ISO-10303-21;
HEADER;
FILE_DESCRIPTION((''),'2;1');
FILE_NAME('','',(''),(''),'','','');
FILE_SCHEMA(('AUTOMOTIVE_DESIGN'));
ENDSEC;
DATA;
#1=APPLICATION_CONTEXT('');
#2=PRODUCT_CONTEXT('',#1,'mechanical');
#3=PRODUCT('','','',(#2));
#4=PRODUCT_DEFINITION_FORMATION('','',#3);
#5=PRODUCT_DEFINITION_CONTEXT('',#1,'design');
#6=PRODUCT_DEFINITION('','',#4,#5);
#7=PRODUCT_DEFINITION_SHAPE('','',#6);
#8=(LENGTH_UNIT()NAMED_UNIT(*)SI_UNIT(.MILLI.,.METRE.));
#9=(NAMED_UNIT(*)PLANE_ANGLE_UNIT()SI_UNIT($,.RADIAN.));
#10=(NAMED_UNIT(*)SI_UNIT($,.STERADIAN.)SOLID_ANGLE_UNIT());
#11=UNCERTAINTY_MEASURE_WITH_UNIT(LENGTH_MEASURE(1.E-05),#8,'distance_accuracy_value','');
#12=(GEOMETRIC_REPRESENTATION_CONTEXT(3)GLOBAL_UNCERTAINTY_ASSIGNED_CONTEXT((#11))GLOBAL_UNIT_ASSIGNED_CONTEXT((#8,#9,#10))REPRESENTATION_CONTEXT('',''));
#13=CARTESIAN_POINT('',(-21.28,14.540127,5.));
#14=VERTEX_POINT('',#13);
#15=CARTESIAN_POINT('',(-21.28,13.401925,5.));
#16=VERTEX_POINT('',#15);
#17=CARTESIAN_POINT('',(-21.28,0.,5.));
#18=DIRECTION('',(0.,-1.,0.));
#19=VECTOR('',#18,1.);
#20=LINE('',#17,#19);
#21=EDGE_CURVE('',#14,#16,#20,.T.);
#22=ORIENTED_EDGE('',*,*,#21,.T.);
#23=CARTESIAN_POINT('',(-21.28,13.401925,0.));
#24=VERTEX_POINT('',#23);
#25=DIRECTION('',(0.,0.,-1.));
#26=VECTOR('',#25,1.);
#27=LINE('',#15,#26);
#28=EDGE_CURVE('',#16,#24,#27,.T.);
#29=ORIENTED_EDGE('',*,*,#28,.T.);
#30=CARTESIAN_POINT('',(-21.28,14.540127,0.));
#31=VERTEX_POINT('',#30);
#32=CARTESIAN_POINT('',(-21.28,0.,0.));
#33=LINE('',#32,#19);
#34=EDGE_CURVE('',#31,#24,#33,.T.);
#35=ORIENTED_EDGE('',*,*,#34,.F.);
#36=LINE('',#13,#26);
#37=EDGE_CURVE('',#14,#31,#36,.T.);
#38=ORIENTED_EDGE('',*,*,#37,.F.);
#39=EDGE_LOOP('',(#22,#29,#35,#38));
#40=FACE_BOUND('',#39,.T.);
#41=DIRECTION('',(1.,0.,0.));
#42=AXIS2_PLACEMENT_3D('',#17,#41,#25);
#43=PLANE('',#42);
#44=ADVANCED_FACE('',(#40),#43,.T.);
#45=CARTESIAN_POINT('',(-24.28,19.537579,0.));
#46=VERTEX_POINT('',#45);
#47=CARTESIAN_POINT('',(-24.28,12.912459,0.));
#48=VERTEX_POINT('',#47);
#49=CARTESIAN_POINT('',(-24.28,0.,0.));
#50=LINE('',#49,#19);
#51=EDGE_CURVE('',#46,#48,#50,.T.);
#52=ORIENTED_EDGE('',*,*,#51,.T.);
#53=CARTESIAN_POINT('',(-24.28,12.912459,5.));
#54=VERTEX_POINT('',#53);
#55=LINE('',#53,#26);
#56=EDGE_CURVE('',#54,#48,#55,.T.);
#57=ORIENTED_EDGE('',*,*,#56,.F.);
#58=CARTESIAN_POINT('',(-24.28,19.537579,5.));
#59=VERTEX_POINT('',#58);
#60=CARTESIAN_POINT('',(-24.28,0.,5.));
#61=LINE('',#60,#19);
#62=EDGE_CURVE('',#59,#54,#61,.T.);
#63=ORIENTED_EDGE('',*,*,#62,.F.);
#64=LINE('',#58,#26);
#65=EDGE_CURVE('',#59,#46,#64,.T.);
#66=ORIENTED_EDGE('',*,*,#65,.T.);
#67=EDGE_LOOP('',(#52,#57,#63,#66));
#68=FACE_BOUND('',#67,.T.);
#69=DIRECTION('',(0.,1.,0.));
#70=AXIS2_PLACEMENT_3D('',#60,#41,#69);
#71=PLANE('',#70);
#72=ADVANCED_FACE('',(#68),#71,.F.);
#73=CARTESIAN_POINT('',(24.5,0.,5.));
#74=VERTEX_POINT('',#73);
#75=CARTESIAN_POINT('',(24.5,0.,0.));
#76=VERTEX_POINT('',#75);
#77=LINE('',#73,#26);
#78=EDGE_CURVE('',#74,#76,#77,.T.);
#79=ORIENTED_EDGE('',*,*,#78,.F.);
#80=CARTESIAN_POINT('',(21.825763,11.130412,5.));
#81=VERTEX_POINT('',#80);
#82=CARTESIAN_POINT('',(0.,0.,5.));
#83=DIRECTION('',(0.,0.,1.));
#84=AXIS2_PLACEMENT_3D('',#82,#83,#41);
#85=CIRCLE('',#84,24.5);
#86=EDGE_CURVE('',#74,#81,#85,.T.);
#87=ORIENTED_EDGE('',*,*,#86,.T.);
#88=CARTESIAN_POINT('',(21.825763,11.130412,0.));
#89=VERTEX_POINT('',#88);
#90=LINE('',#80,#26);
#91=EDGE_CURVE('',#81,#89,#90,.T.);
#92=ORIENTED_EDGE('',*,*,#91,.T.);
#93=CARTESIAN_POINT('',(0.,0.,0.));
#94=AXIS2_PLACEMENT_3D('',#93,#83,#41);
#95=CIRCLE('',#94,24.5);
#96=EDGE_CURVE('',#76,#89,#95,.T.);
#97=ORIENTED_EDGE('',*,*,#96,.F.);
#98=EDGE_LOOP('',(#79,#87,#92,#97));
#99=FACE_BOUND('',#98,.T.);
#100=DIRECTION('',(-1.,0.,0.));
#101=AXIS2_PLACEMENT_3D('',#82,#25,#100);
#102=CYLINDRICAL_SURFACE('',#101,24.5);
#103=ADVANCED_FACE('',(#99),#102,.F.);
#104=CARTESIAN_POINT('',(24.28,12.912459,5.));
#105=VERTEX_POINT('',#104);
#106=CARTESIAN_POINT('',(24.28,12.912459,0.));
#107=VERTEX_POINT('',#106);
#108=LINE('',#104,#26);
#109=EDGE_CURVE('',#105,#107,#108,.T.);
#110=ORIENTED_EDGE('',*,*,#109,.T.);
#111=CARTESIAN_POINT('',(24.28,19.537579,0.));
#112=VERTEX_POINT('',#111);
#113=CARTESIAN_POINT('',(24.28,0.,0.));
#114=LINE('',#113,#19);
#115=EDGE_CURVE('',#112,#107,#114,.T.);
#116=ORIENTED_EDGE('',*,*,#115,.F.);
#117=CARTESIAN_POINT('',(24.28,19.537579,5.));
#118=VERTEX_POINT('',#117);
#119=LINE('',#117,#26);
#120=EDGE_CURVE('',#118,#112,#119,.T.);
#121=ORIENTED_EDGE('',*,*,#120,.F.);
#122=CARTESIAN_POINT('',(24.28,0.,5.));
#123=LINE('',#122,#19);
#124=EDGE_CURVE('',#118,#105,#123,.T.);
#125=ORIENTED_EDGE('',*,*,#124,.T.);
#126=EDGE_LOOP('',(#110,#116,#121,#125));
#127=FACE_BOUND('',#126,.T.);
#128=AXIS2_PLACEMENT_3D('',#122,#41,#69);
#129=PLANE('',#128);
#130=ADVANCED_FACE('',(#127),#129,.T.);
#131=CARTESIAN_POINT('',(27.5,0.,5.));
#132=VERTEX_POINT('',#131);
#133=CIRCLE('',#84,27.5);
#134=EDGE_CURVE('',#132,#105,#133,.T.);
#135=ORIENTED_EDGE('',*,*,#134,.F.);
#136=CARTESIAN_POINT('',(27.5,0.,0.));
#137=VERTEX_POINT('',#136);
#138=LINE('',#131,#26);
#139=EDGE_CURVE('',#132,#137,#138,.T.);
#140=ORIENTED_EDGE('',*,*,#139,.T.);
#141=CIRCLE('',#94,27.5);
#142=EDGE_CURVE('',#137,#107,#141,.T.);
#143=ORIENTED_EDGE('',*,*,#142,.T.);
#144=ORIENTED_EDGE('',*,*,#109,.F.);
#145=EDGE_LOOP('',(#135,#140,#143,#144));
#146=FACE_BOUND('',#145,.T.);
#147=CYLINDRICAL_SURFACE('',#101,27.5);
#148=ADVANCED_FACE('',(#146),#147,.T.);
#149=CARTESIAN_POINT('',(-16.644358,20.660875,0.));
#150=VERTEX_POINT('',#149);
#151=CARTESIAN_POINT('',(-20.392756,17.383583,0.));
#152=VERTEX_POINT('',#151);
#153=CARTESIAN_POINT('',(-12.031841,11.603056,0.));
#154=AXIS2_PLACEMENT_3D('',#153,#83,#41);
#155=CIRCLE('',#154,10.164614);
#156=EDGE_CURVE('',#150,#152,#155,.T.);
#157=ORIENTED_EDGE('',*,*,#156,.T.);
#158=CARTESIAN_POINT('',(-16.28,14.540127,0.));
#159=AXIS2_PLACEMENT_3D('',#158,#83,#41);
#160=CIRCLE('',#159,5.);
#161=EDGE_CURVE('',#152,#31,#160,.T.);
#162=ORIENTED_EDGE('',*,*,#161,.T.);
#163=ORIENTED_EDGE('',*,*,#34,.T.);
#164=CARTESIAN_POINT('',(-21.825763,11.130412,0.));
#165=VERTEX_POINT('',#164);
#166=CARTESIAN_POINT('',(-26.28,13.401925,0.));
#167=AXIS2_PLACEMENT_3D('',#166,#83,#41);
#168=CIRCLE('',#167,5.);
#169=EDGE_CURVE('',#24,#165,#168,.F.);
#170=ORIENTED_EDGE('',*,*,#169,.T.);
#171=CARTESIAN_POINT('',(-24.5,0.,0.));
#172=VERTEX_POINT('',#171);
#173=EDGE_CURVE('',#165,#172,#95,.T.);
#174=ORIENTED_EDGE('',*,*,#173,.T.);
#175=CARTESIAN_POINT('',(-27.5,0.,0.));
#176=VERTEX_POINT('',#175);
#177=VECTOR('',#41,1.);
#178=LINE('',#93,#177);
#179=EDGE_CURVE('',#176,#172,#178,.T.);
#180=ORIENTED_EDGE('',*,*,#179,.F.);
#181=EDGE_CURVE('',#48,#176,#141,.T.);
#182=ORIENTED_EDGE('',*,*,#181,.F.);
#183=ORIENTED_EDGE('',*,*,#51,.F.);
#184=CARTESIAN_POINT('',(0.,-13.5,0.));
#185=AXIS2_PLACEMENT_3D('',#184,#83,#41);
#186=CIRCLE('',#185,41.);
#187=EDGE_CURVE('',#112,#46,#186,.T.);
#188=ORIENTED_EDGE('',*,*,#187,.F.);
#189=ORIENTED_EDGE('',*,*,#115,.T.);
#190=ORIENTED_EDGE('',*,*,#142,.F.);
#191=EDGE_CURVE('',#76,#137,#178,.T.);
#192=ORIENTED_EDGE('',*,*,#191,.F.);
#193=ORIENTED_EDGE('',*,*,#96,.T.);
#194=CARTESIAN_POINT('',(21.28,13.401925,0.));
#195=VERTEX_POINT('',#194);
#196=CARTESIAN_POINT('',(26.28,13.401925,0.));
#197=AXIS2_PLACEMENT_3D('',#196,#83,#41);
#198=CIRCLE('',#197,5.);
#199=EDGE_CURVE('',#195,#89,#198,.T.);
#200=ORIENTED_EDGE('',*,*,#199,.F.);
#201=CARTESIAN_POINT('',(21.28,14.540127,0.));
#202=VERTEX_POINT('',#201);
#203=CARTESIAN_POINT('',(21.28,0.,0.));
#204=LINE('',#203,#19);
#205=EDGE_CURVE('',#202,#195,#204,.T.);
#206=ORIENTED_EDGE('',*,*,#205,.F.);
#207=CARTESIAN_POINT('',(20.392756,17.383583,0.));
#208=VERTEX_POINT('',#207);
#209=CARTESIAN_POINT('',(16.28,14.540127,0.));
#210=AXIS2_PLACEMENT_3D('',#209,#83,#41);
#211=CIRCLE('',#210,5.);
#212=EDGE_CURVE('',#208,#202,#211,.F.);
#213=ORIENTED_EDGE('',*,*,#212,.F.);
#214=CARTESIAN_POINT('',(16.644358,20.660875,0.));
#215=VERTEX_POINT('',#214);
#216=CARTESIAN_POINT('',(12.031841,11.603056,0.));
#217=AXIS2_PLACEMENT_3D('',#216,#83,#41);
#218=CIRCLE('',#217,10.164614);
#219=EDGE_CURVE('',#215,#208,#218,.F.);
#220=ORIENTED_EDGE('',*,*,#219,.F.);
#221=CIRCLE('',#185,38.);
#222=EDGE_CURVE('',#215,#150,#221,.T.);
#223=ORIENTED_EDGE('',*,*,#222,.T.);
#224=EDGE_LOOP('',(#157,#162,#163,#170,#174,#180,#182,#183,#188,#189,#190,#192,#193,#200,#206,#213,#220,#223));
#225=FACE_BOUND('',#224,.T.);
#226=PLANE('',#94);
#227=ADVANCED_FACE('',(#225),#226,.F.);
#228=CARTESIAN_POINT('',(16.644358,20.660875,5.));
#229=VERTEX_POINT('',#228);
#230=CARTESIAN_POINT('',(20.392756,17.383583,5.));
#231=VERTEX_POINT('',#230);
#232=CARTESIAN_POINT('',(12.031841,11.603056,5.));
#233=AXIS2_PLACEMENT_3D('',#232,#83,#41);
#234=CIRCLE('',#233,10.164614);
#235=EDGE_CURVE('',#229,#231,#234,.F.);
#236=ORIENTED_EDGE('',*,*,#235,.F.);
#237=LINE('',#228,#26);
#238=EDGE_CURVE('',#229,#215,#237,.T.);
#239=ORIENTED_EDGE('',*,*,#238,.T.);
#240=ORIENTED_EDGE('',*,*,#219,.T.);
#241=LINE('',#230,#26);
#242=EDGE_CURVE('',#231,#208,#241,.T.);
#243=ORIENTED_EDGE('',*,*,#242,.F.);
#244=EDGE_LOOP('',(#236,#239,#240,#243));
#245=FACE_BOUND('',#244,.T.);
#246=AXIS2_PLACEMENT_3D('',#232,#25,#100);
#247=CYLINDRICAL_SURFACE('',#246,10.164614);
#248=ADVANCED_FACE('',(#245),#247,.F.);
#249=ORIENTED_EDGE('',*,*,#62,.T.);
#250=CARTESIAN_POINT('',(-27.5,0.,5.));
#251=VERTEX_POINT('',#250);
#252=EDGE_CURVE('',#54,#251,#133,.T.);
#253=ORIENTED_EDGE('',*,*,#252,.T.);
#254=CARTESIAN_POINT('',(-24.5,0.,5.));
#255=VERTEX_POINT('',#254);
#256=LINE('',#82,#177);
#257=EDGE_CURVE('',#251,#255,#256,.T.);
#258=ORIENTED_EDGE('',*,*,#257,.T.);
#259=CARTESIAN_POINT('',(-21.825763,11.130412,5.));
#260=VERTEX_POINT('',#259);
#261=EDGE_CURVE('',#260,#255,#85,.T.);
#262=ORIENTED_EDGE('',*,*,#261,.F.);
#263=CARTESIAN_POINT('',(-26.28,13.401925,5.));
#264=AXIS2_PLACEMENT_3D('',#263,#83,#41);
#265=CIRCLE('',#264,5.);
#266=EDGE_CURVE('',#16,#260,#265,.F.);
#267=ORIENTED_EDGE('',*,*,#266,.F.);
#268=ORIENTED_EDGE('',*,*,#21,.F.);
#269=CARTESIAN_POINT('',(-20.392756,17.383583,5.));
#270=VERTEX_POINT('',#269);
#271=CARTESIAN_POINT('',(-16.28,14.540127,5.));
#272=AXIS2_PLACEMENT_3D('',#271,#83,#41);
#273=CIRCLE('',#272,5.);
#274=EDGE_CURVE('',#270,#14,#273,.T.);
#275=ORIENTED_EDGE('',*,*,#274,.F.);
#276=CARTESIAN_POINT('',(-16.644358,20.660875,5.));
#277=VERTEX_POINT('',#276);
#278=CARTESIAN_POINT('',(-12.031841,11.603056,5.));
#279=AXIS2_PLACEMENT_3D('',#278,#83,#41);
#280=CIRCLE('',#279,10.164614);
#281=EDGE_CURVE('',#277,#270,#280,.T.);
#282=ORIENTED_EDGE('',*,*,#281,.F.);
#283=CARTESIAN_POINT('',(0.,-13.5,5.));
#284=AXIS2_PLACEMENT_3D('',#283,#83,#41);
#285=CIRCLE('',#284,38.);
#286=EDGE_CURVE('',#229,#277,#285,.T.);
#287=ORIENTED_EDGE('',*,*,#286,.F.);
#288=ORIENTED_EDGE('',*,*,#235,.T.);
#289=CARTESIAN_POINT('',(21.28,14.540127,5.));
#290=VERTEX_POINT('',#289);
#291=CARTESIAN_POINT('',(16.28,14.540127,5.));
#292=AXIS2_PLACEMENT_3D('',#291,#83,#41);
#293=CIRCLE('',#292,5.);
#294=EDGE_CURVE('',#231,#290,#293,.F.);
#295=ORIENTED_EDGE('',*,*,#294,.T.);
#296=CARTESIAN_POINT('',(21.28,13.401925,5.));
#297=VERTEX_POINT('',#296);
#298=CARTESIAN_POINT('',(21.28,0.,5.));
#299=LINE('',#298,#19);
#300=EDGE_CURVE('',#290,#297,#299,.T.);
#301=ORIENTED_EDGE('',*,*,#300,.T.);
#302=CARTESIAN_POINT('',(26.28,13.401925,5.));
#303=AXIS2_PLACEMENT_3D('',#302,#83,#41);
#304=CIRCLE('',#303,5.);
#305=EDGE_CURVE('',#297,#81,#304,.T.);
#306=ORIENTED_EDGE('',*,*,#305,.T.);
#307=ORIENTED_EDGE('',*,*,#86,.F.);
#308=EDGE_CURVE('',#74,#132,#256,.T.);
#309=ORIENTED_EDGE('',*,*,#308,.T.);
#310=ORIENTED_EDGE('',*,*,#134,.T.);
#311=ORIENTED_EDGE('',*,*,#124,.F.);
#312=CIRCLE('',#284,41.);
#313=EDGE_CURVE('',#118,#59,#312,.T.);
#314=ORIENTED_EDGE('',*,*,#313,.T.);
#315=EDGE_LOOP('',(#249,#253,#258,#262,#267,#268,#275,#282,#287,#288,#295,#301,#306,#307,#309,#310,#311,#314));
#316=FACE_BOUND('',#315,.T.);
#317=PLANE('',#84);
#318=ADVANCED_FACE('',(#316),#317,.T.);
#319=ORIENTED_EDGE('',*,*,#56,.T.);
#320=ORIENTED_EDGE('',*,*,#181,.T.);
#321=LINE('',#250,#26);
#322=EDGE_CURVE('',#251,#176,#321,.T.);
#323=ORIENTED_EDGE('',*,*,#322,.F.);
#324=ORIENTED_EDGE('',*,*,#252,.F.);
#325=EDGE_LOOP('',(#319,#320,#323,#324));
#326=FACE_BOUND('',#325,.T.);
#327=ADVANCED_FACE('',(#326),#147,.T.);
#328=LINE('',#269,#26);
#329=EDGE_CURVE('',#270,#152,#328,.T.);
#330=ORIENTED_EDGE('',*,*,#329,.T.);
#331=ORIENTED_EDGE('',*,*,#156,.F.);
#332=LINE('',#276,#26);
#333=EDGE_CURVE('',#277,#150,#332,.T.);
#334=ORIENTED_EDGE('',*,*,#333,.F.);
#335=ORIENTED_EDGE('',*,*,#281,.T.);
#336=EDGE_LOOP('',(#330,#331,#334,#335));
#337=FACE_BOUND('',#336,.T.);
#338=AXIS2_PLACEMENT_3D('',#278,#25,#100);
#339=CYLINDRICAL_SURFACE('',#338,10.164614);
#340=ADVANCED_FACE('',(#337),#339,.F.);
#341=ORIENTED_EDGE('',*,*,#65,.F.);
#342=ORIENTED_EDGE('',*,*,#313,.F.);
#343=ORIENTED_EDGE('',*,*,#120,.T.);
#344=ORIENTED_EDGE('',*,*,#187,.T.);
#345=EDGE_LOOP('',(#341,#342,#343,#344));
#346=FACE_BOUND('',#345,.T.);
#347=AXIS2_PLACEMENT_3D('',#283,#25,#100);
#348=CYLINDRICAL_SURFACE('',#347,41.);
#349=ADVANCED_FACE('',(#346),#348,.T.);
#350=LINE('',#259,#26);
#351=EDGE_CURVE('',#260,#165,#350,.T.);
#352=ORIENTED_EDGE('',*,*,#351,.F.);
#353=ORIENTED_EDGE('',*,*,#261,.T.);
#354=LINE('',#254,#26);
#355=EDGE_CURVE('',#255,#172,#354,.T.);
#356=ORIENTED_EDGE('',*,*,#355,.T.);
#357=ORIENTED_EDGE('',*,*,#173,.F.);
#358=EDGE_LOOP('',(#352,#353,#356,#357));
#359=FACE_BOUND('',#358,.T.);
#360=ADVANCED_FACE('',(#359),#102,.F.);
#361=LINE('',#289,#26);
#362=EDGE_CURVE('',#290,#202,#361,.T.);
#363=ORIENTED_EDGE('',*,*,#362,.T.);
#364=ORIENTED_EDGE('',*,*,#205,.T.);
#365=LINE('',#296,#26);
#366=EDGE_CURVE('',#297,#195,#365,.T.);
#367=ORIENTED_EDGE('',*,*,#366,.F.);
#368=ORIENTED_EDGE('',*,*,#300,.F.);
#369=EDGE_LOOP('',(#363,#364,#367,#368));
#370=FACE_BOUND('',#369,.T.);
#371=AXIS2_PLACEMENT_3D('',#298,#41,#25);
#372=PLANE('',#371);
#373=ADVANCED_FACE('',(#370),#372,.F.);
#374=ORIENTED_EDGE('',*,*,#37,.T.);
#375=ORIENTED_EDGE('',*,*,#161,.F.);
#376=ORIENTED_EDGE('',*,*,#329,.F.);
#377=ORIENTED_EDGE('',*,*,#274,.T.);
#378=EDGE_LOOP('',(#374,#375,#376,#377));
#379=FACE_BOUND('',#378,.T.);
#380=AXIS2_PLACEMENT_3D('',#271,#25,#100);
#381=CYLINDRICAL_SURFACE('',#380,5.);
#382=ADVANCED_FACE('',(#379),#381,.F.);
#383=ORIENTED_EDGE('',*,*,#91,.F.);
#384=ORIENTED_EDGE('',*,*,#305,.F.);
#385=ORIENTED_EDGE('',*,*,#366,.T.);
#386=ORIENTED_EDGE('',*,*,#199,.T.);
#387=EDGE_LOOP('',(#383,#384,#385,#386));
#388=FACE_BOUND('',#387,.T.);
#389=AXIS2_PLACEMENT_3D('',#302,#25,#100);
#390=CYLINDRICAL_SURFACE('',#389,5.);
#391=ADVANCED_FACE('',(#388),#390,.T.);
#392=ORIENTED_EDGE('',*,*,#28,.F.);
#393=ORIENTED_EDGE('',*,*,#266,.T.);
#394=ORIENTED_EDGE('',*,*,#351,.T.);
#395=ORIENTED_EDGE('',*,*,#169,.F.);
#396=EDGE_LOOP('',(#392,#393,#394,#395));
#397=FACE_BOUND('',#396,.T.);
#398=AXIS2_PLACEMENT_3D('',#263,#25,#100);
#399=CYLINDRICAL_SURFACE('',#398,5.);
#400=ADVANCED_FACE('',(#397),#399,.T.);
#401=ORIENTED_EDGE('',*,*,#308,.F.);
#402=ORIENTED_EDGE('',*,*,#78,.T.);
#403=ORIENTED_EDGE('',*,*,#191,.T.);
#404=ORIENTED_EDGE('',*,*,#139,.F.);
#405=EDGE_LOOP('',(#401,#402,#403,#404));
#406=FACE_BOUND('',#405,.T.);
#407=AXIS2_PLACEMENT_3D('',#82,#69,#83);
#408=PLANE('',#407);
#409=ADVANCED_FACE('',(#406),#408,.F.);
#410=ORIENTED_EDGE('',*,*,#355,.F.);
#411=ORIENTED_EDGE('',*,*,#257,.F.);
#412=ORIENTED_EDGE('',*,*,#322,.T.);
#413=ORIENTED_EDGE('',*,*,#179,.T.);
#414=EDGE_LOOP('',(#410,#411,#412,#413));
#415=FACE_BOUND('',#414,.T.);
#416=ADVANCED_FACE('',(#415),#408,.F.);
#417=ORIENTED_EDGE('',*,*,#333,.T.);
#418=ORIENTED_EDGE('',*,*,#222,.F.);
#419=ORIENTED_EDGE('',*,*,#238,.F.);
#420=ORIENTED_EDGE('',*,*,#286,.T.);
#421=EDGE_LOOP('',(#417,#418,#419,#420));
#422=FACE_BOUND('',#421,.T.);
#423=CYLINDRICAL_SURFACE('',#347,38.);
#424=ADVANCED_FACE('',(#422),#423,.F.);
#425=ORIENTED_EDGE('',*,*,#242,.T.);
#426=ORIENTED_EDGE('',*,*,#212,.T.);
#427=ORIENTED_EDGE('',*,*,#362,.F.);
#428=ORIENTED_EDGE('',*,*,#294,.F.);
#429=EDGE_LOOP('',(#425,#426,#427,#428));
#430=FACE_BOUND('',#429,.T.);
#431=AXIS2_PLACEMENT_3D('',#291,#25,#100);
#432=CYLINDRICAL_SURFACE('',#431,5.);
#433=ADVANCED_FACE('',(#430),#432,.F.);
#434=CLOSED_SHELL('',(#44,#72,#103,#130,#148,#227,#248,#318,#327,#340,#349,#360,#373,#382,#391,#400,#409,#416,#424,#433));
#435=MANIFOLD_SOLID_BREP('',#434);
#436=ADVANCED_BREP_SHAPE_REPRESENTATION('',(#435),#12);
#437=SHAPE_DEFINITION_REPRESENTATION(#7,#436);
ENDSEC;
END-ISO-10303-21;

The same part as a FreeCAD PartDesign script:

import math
import FreeCAD as App
import Part
import Sketcher
from FreeCAD import Vector

doc = App.newDocument("Part")
body = doc.addObject("PartDesign::Body", "Body")

# Sketch on XY plane
sketch1 = body.newObject("Sketcher::SketchObject", "Sketch")
sketch1.AttachmentSupport = (doc.getObject("XY_Plane"), [""])
sketch1.MapMode = "FlatFace"
sketch1.addGeometry([
    Part.LineSegment(Vector(-27.5, 0, 0), Vector(-24.5, 0, 0)),  # 0
    Part.ArcOfCircle(Part.Circle(Vector(0, 0, 0), Vector(0, 0, 1), 24.5), math.radians(153), math.radians(180)),  # 1
    Part.ArcOfCircle(Part.Circle(Vector(-26.3, 13.4, 0), Vector(0, 0, 1), 5), math.radians(-27), math.radians(0)),  # 2
    Part.LineSegment(Vector(-21.3, 13.4, 0), Vector(-21.3, 14.5, 0)),  # 3
    Part.ArcOfCircle(Part.Circle(Vector(-16.3, 14.5, 0), Vector(0, 0, 1), 5), math.radians(145), math.radians(180)),  # 4
    Part.ArcOfCircle(Part.Circle(Vector(-12, 11.6, 0), Vector(0, 0, 1), 10.2), math.radians(117), math.radians(145)),  # 5
    Part.ArcOfCircle(Part.Circle(Vector(0, -13.5, 0), Vector(0, 0, 1), 38), math.radians(64), math.radians(116)),  # 6
    Part.ArcOfCircle(Part.Circle(Vector(12, 11.6, 0), Vector(0, 0, 1), 10.2), math.radians(35), math.radians(63)),  # 7
    Part.ArcOfCircle(Part.Circle(Vector(16.3, 14.5, 0), Vector(0, 0, 1), 5), math.radians(0), math.radians(35)),  # 8
    Part.LineSegment(Vector(21.3, 14.5, 0), Vector(21.3, 13.4, 0)),  # 9
    Part.ArcOfCircle(Part.Circle(Vector(26.3, 13.4, 0), Vector(0, 0, 1), 5), math.radians(180), math.radians(207)),  # 10
    Part.ArcOfCircle(Part.Circle(Vector(0, 0, 0), Vector(0, 0, 1), 24.5), math.radians(0), math.radians(27)),  # 11
    Part.LineSegment(Vector(24.5, 0, 0), Vector(27.5, 0, 0)),  # 12
    Part.ArcOfCircle(Part.Circle(Vector(0, 0, 0), Vector(0, 0, 1), 27.5), math.radians(0), math.radians(28)),  # 13
    Part.LineSegment(Vector(24.3, 12.9, 0), Vector(24.3, 19.5, 0)),  # 14
    Part.ArcOfCircle(Part.Circle(Vector(0, -13.5, 0), Vector(0, 0, 1), 41), math.radians(54), math.radians(126)),  # 15
    Part.LineSegment(Vector(-24.3, 19.5, 0), Vector(-24.3, 12.9, 0)),  # 16
    Part.ArcOfCircle(Part.Circle(Vector(0, 0, 0), Vector(0, 0, 1), 27.5), math.radians(152), math.radians(180)),  # 17
], False)
sketch1.addConstraint([
    Sketcher.Constraint("Coincident", 0, 2, 1, 2),
    Sketcher.Constraint("Tangent", 1, 1, 2, 1),
    Sketcher.Constraint("Tangent", 2, 2, 3, 1),
    Sketcher.Constraint("Tangent", 3, 2, 4, 2),
    Sketcher.Constraint("Tangent", 4, 1, 5, 2),
    Sketcher.Constraint("Coincident", 5, 1, 6, 2),
    Sketcher.Constraint("Coincident", 6, 1, 7, 2),
    Sketcher.Constraint("Tangent", 7, 1, 8, 2),
    Sketcher.Constraint("Tangent", 8, 1, 9, 1),
    Sketcher.Constraint("Tangent", 9, 2, 10, 1),
    Sketcher.Constraint("Tangent", 10, 2, 11, 2),
    Sketcher.Constraint("Coincident", 11, 1, 12, 1),
    Sketcher.Constraint("Coincident", 12, 2, 13, 1),
    Sketcher.Constraint("Coincident", 13, 2, 14, 1),
    Sketcher.Constraint("Coincident", 14, 2, 15, 1),
    Sketcher.Constraint("Coincident", 15, 2, 16, 1),
    Sketcher.Constraint("Coincident", 16, 2, 17, 1),
    Sketcher.Constraint("Coincident", 17, 2, 0, 1),
    Sketcher.Constraint("Horizontal", 0),
    Sketcher.Constraint("Vertical", 3),
    Sketcher.Constraint("Vertical", 9),
    Sketcher.Constraint("Horizontal", 12),
    Sketcher.Constraint("Vertical", 14),
    Sketcher.Constraint("Vertical", 16),
    Sketcher.Constraint("Coincident", 1, 3, -1, 1),
    Sketcher.Constraint("Coincident", 11, 3, -1, 1),
    Sketcher.Constraint("Coincident", 13, 3, -1, 1),
    Sketcher.Constraint("Coincident", 17, 3, -1, 1),
    Sketcher.Constraint("Coincident", 15, 3, 6, 3),
    Sketcher.Constraint("Equal", 2, 4),
    Sketcher.Constraint("Equal", 5, 7),
    Sketcher.Constraint("Equal", 4, 8),
    Sketcher.Constraint("Equal", 8, 10),
    Sketcher.Constraint("Equal", 1, 11),
    Sketcher.Constraint("Equal", 13, 17),
    Sketcher.Constraint("Symmetric", 5, 3, 7, 3, -2),
    Sketcher.Constraint("Symmetric", 14, 2, 15, 2, -2),
    Sketcher.Constraint("PointOnObject", 0, 2, -1),
    Sketcher.Constraint("PointOnObject", 11, 1, -1),
    Sketcher.Constraint("Horizontal", 4, 3, 8, 3),
    Sketcher.Constraint("Radius", 2, 5.0),
    Sketcher.Constraint("Radius", 6, 38.0),
    Sketcher.Constraint("Radius", 15, 41.0),
    Sketcher.Constraint("Radius", 1, 24.5),
    Sketcher.Constraint("Radius", 13, 27.5),
    Sketcher.Constraint("DistanceX", 13, 2, 10, 3, 2.0),
    Sketcher.Constraint("DistanceY", 6, 3, -1, 1, 13.5),
    Sketcher.Constraint("DistanceX", 2, 3, -1, 1, 26.28),
    Sketcher.Constraint("DistanceY", 3, 1, 3, 2, 1.138202),
    Sketcher.Constraint("Radius", 5, 10.164614),
    Sketcher.Constraint("DistanceX", 5, 3, -1, 1, 12.031841),
])
pad1 = body.newObject("PartDesign::Pad", "Pad")
pad1.Profile = sketch1
pad1.Length = 5

doc.recompute()
